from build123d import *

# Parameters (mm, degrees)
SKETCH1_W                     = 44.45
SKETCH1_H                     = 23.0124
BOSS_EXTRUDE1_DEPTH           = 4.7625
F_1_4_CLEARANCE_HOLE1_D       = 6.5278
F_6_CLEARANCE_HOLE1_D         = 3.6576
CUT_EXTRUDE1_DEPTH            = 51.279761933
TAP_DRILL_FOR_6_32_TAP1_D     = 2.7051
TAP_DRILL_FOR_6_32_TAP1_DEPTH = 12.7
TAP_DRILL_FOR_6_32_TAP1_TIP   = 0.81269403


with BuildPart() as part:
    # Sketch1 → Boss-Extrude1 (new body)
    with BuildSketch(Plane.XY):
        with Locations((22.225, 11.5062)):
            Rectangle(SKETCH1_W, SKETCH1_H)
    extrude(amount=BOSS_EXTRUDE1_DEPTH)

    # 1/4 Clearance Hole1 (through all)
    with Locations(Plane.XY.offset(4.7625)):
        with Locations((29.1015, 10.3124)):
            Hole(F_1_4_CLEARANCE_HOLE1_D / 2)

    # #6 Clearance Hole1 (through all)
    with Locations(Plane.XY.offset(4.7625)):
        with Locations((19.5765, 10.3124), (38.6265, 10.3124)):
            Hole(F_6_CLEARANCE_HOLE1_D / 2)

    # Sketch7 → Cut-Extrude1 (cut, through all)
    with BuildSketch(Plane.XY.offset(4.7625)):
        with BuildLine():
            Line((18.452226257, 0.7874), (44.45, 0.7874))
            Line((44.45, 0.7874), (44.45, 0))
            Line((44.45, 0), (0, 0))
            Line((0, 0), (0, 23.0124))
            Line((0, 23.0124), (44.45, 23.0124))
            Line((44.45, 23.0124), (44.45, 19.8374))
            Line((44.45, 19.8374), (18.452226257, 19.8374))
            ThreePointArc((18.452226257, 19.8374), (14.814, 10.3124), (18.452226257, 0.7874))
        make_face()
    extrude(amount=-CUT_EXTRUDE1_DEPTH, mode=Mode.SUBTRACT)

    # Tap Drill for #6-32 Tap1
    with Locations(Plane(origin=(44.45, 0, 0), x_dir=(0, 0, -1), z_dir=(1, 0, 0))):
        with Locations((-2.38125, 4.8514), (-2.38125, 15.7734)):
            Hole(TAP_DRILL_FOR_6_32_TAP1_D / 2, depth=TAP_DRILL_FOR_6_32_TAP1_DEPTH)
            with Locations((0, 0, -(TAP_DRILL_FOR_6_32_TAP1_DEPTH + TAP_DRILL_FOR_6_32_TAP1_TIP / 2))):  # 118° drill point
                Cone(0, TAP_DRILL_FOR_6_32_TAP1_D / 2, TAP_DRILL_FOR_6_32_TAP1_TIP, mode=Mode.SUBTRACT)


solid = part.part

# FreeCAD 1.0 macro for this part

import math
import FreeCAD as App
import Part
import Sketcher

V = App.Vector
Q = App.Units.Quantity

doc = App.newDocument("Part")
body = doc.addObject("PartDesign::Body", "Body")

# Sketch on XY plane
sketch1 = doc.addObject("Sketcher::SketchObject", "Sketch")
body.addObject(sketch1)
sketch1.AttachmentSupport = (doc.XY_Plane, [""])
sketch1.MapMode = "FlatFace"
sketch1.addGeometry([
    Part.LineSegment(V(0, 23.0124, 0), V(0, 0, 0)),
    Part.LineSegment(V(0, 0, 0), V(44.45, 0, 0)),
    Part.LineSegment(V(44.45, 0, 0), V(44.45, 23.0124, 0)),
    Part.LineSegment(V(44.45, 23.0124, 0), V(0, 23.0124, 0)),
], False)
sketch1.addConstraint([
    Sketcher.Constraint("Coincident", 0, 2, 1, 1),
    Sketcher.Constraint("Coincident", 1, 2, 2, 1),
    Sketcher.Constraint("Coincident", 2, 2, 3, 1),
    Sketcher.Constraint("Coincident", 3, 2, 0, 1),
    Sketcher.Constraint("Vertical", 0),
    Sketcher.Constraint("Horizontal", 1),
    Sketcher.Constraint("Vertical", 2),
    Sketcher.Constraint("Horizontal", 3),
    Sketcher.Constraint("Coincident", 0, 2, -1, 1),
    Sketcher.Constraint("DistanceX", 1, 1, 1, 2, Q("1.75 in")),
    Sketcher.Constraint("DistanceY", 0, 2, 0, 1, Q("0.906 in")),
])
pad1 = doc.addObject("PartDesign::Pad", "Pad")
body.addObject(pad1)
pad1.Profile = sketch1
pad1.Length = Q("0.1875 in")

# Sketch on XY plane
sketch2 = doc.addObject("Sketcher::SketchObject", "Sketch001")
body.addObject(sketch2)
sketch2.AttachmentSupport = (doc.XY_Plane, [""])
sketch2.MapMode = "FlatFace"
sketch2.AttachmentOffset = App.Placement(V(0, 0, 0.1875 * 25.4), App.Rotation())
sketch2.addGeometry(Part.Circle(V(29.1015, 10.3124, 0), V(0, 0, 1), 3.2639), False)
sketch2.addConstraint([
    Sketcher.Constraint("Diameter", 0, Q("0.257 in")),
    Sketcher.Constraint("DistanceY", -1, 1, 0, 3, Q("0.406 in")),
    Sketcher.Constraint("DistanceX", -1, 1, 0, 3, 29.1015),
])
doc.recompute()
hole = doc.addObject("PartDesign::Hole", "Hole")
body.addObject(hole)
hole.Profile = sketch2
hole.ThreadType = "None"
hole.Diameter = Q("0.257 in")
hole.DepthType = "ThroughAll"

# Sketch on XY plane
sketch3 = doc.addObject("Sketcher::SketchObject", "Sketch002")
body.addObject(sketch3)
sketch3.AttachmentSupport = (doc.XY_Plane, [""])
sketch3.MapMode = "FlatFace"
sketch3.AttachmentOffset = App.Placement(V(0, 0, 0.1875 * 25.4), App.Rotation())
sketch3.addGeometry([
    Part.Circle(V(19.5765, 10.3124, 0), V(0, 0, 1), 1.8288),
    Part.Circle(V(38.6265, 10.3124, 0), V(0, 0, 1), 1.8288),
], False)
sketch3.addConstraint([
    Sketcher.Constraint("Equal", 0, 1),
    Sketcher.Constraint("Horizontal", 0, 3, 1, 3),
    Sketcher.Constraint("Diameter", 0, Q("0.144 in")),
    Sketcher.Constraint("DistanceX", 0, 3, 1, 3, Q("0.75 in")),
    Sketcher.Constraint("DistanceY", -1, 1, 0, 3, Q("0.406 in")),
    Sketcher.Constraint("DistanceX", -1, 1, 0, 3, 19.5765),
])
doc.recompute()
hole2 = doc.addObject("PartDesign::Hole", "Hole001")
body.addObject(hole2)
hole2.Profile = sketch3
hole2.ThreadType = "None"
hole2.Diameter = Q("0.144 in")
hole2.DepthType = "ThroughAll"

# Sketch on XY plane
sketch4 = doc.addObject("Sketcher::SketchObject", "Sketch003")
body.addObject(sketch4)
sketch4.AttachmentSupport = (doc.XY_Plane, [""])
sketch4.MapMode = "FlatFace"
sketch4.AttachmentOffset = App.Placement(V(0, 0, 0.1875 * 25.4), App.Rotation())
sketch4.addGeometry([
    Part.LineSegment(V(44.45, 0.7874, 0), V(18.452226, 0.7874, 0)),  # 0
    Part.ArcOfCircle(Part.Circle(V(29.1015, 10.3124, 0), V(0, 0, 1), 14.2875), math.radians(138.189685), math.radians(221.810315)),  # 1
    Part.LineSegment(V(18.452226, 19.8374, 0), V(44.45, 19.8374, 0)),  # 2
    Part.LineSegment(V(44.45, 19.8374, 0), V(44.45, 23.0124, 0)),  # 3
    Part.LineSegment(V(44.45, 23.0124, 0), V(0, 23.0124, 0)),  # 4
    Part.LineSegment(V(0, 23.0124, 0), V(0, 0, 0)),  # 5
    Part.LineSegment(V(0, 0, 0), V(44.45, 0, 0)),  # 6
    Part.LineSegment(V(44.45, 0, 0), V(44.45, 0.7874, 0)),  # 7
], False)
sketch4.addConstraint([
    Sketcher.Constraint("Coincident", 0, 2, 1, 2),
    Sketcher.Constraint("Coincident", 1, 1, 2, 1),
    Sketcher.Constraint("Coincident", 2, 2, 3, 1),
    Sketcher.Constraint("Coincident", 3, 2, 4, 1),
    Sketcher.Constraint("Coincident", 4, 2, 5, 1),
    Sketcher.Constraint("Coincident", 5, 2, 6, 1),
    Sketcher.Constraint("Coincident", 6, 2, 7, 1),
    Sketcher.Constraint("Coincident", 7, 2, 0, 1),
    Sketcher.Constraint("Horizontal", 0),
    Sketcher.Constraint("Horizontal", 2),
    Sketcher.Constraint("Vertical", 3),
    Sketcher.Constraint("Horizontal", 4),
    Sketcher.Constraint("Vertical", 5),
    Sketcher.Constraint("Horizontal", 6),
    Sketcher.Constraint("Vertical", 7),
    Sketcher.Constraint("Coincident", 5, 2, -1, 1),
    Sketcher.Constraint("Vertical", 0, 2, 1, 1),
    Sketcher.Constraint("Vertical", 3, 2, 6, 2),
    Sketcher.Constraint("Radius", 1, Q("0.5625 in")),
    Sketcher.Constraint("DistanceX", 4, 2, 4, 1, Q("1.75 in")),
    Sketcher.Constraint("DistanceY", 1, 3, 3, 2, Q("0.5 in")),
    Sketcher.Constraint("DistanceY", 3, 1, 3, 2, Q("0.125 in")),
    Sketcher.Constraint("DistanceY", 5, 2, 5, 1, Q("0.906 in")),
    Sketcher.Constraint("DistanceX", -1, 1, 1, 3, 29.1015),
])
pocket1 = doc.addObject("PartDesign::Pocket", "Pocket")
body.addObject(pocket1)
pocket1.Profile = sketch4
pocket1.Type = "ThroughAll"

# Sketch on YZ plane
sketch5 = doc.addObject("Sketcher::SketchObject", "Sketch004")
body.addObject(sketch5)
sketch5.AttachmentSupport = (doc.YZ_Plane, [""])
sketch5.MapMode = "FlatFace"
sketch5.AttachmentOffset = App.Placement(V(0, 0, 1.75 * 25.4), App.Rotation())
sketch5.addGeometry([
    Part.Circle(V(4.8514, 2.38125, 0), V(0, 0, 1), 1.35255),
    Part.Circle(V(15.7734, 2.38125, 0), V(0, 0, 1), 1.35255),
], False)
sketch5.addConstraint([
    Sketcher.Constraint("Equal", 0, 1),
    Sketcher.Constraint("Horizontal", 0, 3, 1, 3),
    Sketcher.Constraint("Diameter", 0, Q("0.1065 in")),
    Sketcher.Constraint("DistanceX", 0, 3, 1, 3, Q("0.43 in")),
    Sketcher.Constraint("DistanceX", -1, 1, 0, 3, Q("0.191 in")),
    Sketcher.Constraint("DistanceY", -1, 1, 0, 3, Q("0.09375 in")),
])
doc.recompute()
hole3 = doc.addObject("PartDesign::Hole", "Hole002")
body.addObject(hole3)
hole3.Profile = sketch5
hole3.ThreadType = "None"
hole3.Diameter = Q("0.1065 in")
hole3.DepthType = "Dimension"
hole3.Depth = Q("0.5 in")
hole3.DrillPoint = "Angled"
hole3.DrillPointAngle = 118

doc.recompute()
